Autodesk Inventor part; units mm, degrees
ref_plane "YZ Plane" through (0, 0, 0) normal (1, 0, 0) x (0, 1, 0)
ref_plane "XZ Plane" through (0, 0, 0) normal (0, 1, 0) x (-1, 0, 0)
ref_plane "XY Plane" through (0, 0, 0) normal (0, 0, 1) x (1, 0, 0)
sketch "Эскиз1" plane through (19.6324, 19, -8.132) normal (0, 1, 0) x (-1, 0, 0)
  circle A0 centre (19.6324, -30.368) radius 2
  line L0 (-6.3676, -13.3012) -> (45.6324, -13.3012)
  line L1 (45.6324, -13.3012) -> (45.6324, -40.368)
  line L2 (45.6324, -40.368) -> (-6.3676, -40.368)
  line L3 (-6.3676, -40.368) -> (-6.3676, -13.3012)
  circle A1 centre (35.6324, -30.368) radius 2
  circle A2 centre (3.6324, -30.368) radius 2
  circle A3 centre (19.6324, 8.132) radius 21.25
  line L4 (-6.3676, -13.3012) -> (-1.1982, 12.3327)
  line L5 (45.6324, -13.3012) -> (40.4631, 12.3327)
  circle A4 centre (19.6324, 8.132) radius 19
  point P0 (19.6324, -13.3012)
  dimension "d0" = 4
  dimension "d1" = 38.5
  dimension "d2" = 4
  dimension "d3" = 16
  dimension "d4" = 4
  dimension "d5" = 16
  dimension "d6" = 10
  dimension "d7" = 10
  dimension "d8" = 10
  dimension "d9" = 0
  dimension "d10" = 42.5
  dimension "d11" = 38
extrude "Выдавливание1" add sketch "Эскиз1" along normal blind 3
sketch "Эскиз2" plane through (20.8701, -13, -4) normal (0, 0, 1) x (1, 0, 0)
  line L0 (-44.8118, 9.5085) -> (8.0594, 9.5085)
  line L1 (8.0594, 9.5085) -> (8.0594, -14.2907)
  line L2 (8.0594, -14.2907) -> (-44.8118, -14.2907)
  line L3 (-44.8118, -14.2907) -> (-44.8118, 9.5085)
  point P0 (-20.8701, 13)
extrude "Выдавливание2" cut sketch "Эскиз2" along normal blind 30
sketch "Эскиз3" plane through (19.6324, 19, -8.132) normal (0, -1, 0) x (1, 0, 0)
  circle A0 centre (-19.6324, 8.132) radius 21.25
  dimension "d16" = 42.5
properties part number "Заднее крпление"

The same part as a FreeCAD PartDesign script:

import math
import FreeCAD as App
import Part
import Sketcher
Q = App.Units.Quantity

doc = App.newDocument("Part")
body = doc.addObject("PartDesign::Body", "Body")

sketch1 = body.newObject("Sketcher::SketchObject", "Sketch")
sketch1.AttachmentSupport = (doc.getObject("XZ_Plane"), [""])
sketch1.MapMode = "FlatFace"
sketch1.AttachmentOffset = App.Placement(App.Vector(0, 0, -19), App.Rotation())
sketch1.addGeometry(Part.LineSegment(App.Vector(20.8, 4.2, 0), App.Vector(26, -21.4, 0)), False)
sketch1.addGeometry(Part.LineSegment(App.Vector(26, -21.4, 0), App.Vector(26, -48.5, 0)), False)
sketch1.addGeometry(Part.LineSegment(App.Vector(26, -48.5, 0), App.Vector(-26, -48.5, 0)), False)
sketch1.addGeometry(Part.LineSegment(App.Vector(-26, -48.5, 0), App.Vector(-26, -21.4, 0)), False)
sketch1.addGeometry(Part.LineSegment(App.Vector(-26, -21.4, 0), App.Vector(-20.8, 4.2, 0)), False)
sketch1.addGeometry(Part.ArcOfCircle(Part.Circle(App.Vector(0, 0, 0), App.Vector(0, 0, 1), 21.2), math.radians(11), math.radians(169)), False)
sketch1.addGeometry(Part.Circle(App.Vector(0, 0, 0), App.Vector(0, 0, 1), 19), False)
sketch1.addGeometry(Part.Circle(App.Vector(-16, -38.5, 0), App.Vector(0, 0, 1), 2), False)
sketch1.addGeometry(Part.Circle(App.Vector(16, -38.5, 0), App.Vector(0, 0, 1), 2), False)
sketch1.addGeometry(Part.Circle(App.Vector(0, -38.5, 0), App.Vector(0, 0, 1), 2), False)
sketch1.addConstraint(Sketcher.Constraint("Coincident", 0, 2, 1, 1))
sketch1.addConstraint(Sketcher.Constraint("Coincident", 1, 2, 2, 1))
sketch1.addConstraint(Sketcher.Constraint("Coincident", 2, 2, 3, 1))
sketch1.addConstraint(Sketcher.Constraint("Coincident", 3, 2, 4, 1))
sketch1.addConstraint(Sketcher.Constraint("Tangent", 4, 2, 5, 2))
sketch1.addConstraint(Sketcher.Constraint("Tangent", 5, 1, 0, 1))
sketch1.addConstraint(Sketcher.Constraint("Vertical", 1))
sketch1.addConstraint(Sketcher.Constraint("Horizontal", 2))
sketch1.addConstraint(Sketcher.Constraint("Vertical", 3))
sketch1.addConstraint(Sketcher.Constraint("Coincident", 5, 3, -1, 1))
sketch1.addConstraint(Sketcher.Constraint("Coincident", 6, 3, -1, 1))
sketch1.addConstraint(Sketcher.Constraint("Equal", 7, 8))
sketch1.addConstraint(Sketcher.Constraint("Equal", 8, 9))
sketch1.addConstraint(Sketcher.Constraint("Symmetric", 7, 3, 8, 3, -2))
sketch1.addConstraint(Sketcher.Constraint("Symmetric", 0, 2, 3, 2, -2))
sketch1.addConstraint(Sketcher.Constraint("PointOnObject", 9, 3, -2))
sketch1.addConstraint(Sketcher.Constraint("Horizontal", 8, 3, 9, 3))
sketch1.addConstraint(Sketcher.Constraint("Diameter", 6, Q("38 mm")))
sketch1.addConstraint(Sketcher.Constraint("Diameter", 7, Q("4 mm")))
sketch1.addConstraint(Sketcher.Constraint("Radius", 5, Q("21.25 mm")))
sketch1.addConstraint(Sketcher.Constraint("DistanceX", 7, 3, -1, 1, Q("16 mm")))
sketch1.addConstraint(Sketcher.Constraint("DistanceX", 8, 3, 0, 2, Q("10 mm")))
sketch1.addConstraint(Sketcher.Constraint("DistanceY", 1, 2, 8, 3, Q("10 mm")))
sketch1.addConstraint(Sketcher.Constraint("DistanceY", 7, 3, -1, 1, Q("38.5 mm")))
sketch1.addConstraint(Sketcher.Constraint("Distance", 0, Q("26.15 mm")))
pad1 = body.newObject("PartDesign::Pad", "Pad")
pad1.Profile = sketch1
pad1.Length = 3
pad1.Reversed = True

sketch2 = body.newObject("Sketcher::SketchObject", "Sketch001")
sketch2.AttachmentSupport = (doc.getObject("XY_Plane"), [""])
sketch2.MapMode = "FlatFace"
sketch2.AttachmentOffset = App.Placement(App.Vector(0, 0, -4), App.Rotation())
sketch2.addGeometry(Part.LineSegment(App.Vector(29, -3, 0), App.Vector(-24, -3, 0)), False)
sketch2.addGeometry(Part.LineSegment(App.Vector(-24, -3, 0), App.Vector(-24, -27, 0)), False)
sketch2.addGeometry(Part.LineSegment(App.Vector(-24, -27, 0), App.Vector(29, -27, 0)), False)
sketch2.addGeometry(Part.LineSegment(App.Vector(29, -27, 0), App.Vector(29, -3, 0)), False)
sketch2.addConstraint(Sketcher.Constraint("Coincident", 0, 2, 1, 1))
sketch2.addConstraint(Sketcher.Constraint("Coincident", 1, 2, 2, 1))
sketch2.addConstraint(Sketcher.Constraint("Coincident", 2, 2, 3, 1))
sketch2.addConstraint(Sketcher.Constraint("Coincident", 3, 2, 0, 1))
sketch2.addConstraint(Sketcher.Constraint("Horizontal", 0))
sketch2.addConstraint(Sketcher.Constraint("Vertical", 1))
sketch2.addConstraint(Sketcher.Constraint("Horizontal", 2))
sketch2.addConstraint(Sketcher.Constraint("Vertical", 3))
sketch2.addConstraint(Sketcher.Constraint("DistanceX", 0, 2, 0, 1, Q("52.8712 mm")))
sketch2.addConstraint(Sketcher.Constraint("DistanceY", 1, 2, 1, 1, Q("23.7992 mm")))
sketch2.addConstraint(Sketcher.Constraint("DistanceX", 0, 2, -1, 1, Q("23.9417 mm")))
sketch2.addConstraint(Sketcher.Constraint("DistanceY", 0, 2, -1, 1, Q("3.4915 mm")))
pocket1 = body.newObject("PartDesign::Pocket", "Pocket")
pocket1.Profile = sketch2
pocket1.Length = 30
pocket1.Reversed = True

doc.recompute()
